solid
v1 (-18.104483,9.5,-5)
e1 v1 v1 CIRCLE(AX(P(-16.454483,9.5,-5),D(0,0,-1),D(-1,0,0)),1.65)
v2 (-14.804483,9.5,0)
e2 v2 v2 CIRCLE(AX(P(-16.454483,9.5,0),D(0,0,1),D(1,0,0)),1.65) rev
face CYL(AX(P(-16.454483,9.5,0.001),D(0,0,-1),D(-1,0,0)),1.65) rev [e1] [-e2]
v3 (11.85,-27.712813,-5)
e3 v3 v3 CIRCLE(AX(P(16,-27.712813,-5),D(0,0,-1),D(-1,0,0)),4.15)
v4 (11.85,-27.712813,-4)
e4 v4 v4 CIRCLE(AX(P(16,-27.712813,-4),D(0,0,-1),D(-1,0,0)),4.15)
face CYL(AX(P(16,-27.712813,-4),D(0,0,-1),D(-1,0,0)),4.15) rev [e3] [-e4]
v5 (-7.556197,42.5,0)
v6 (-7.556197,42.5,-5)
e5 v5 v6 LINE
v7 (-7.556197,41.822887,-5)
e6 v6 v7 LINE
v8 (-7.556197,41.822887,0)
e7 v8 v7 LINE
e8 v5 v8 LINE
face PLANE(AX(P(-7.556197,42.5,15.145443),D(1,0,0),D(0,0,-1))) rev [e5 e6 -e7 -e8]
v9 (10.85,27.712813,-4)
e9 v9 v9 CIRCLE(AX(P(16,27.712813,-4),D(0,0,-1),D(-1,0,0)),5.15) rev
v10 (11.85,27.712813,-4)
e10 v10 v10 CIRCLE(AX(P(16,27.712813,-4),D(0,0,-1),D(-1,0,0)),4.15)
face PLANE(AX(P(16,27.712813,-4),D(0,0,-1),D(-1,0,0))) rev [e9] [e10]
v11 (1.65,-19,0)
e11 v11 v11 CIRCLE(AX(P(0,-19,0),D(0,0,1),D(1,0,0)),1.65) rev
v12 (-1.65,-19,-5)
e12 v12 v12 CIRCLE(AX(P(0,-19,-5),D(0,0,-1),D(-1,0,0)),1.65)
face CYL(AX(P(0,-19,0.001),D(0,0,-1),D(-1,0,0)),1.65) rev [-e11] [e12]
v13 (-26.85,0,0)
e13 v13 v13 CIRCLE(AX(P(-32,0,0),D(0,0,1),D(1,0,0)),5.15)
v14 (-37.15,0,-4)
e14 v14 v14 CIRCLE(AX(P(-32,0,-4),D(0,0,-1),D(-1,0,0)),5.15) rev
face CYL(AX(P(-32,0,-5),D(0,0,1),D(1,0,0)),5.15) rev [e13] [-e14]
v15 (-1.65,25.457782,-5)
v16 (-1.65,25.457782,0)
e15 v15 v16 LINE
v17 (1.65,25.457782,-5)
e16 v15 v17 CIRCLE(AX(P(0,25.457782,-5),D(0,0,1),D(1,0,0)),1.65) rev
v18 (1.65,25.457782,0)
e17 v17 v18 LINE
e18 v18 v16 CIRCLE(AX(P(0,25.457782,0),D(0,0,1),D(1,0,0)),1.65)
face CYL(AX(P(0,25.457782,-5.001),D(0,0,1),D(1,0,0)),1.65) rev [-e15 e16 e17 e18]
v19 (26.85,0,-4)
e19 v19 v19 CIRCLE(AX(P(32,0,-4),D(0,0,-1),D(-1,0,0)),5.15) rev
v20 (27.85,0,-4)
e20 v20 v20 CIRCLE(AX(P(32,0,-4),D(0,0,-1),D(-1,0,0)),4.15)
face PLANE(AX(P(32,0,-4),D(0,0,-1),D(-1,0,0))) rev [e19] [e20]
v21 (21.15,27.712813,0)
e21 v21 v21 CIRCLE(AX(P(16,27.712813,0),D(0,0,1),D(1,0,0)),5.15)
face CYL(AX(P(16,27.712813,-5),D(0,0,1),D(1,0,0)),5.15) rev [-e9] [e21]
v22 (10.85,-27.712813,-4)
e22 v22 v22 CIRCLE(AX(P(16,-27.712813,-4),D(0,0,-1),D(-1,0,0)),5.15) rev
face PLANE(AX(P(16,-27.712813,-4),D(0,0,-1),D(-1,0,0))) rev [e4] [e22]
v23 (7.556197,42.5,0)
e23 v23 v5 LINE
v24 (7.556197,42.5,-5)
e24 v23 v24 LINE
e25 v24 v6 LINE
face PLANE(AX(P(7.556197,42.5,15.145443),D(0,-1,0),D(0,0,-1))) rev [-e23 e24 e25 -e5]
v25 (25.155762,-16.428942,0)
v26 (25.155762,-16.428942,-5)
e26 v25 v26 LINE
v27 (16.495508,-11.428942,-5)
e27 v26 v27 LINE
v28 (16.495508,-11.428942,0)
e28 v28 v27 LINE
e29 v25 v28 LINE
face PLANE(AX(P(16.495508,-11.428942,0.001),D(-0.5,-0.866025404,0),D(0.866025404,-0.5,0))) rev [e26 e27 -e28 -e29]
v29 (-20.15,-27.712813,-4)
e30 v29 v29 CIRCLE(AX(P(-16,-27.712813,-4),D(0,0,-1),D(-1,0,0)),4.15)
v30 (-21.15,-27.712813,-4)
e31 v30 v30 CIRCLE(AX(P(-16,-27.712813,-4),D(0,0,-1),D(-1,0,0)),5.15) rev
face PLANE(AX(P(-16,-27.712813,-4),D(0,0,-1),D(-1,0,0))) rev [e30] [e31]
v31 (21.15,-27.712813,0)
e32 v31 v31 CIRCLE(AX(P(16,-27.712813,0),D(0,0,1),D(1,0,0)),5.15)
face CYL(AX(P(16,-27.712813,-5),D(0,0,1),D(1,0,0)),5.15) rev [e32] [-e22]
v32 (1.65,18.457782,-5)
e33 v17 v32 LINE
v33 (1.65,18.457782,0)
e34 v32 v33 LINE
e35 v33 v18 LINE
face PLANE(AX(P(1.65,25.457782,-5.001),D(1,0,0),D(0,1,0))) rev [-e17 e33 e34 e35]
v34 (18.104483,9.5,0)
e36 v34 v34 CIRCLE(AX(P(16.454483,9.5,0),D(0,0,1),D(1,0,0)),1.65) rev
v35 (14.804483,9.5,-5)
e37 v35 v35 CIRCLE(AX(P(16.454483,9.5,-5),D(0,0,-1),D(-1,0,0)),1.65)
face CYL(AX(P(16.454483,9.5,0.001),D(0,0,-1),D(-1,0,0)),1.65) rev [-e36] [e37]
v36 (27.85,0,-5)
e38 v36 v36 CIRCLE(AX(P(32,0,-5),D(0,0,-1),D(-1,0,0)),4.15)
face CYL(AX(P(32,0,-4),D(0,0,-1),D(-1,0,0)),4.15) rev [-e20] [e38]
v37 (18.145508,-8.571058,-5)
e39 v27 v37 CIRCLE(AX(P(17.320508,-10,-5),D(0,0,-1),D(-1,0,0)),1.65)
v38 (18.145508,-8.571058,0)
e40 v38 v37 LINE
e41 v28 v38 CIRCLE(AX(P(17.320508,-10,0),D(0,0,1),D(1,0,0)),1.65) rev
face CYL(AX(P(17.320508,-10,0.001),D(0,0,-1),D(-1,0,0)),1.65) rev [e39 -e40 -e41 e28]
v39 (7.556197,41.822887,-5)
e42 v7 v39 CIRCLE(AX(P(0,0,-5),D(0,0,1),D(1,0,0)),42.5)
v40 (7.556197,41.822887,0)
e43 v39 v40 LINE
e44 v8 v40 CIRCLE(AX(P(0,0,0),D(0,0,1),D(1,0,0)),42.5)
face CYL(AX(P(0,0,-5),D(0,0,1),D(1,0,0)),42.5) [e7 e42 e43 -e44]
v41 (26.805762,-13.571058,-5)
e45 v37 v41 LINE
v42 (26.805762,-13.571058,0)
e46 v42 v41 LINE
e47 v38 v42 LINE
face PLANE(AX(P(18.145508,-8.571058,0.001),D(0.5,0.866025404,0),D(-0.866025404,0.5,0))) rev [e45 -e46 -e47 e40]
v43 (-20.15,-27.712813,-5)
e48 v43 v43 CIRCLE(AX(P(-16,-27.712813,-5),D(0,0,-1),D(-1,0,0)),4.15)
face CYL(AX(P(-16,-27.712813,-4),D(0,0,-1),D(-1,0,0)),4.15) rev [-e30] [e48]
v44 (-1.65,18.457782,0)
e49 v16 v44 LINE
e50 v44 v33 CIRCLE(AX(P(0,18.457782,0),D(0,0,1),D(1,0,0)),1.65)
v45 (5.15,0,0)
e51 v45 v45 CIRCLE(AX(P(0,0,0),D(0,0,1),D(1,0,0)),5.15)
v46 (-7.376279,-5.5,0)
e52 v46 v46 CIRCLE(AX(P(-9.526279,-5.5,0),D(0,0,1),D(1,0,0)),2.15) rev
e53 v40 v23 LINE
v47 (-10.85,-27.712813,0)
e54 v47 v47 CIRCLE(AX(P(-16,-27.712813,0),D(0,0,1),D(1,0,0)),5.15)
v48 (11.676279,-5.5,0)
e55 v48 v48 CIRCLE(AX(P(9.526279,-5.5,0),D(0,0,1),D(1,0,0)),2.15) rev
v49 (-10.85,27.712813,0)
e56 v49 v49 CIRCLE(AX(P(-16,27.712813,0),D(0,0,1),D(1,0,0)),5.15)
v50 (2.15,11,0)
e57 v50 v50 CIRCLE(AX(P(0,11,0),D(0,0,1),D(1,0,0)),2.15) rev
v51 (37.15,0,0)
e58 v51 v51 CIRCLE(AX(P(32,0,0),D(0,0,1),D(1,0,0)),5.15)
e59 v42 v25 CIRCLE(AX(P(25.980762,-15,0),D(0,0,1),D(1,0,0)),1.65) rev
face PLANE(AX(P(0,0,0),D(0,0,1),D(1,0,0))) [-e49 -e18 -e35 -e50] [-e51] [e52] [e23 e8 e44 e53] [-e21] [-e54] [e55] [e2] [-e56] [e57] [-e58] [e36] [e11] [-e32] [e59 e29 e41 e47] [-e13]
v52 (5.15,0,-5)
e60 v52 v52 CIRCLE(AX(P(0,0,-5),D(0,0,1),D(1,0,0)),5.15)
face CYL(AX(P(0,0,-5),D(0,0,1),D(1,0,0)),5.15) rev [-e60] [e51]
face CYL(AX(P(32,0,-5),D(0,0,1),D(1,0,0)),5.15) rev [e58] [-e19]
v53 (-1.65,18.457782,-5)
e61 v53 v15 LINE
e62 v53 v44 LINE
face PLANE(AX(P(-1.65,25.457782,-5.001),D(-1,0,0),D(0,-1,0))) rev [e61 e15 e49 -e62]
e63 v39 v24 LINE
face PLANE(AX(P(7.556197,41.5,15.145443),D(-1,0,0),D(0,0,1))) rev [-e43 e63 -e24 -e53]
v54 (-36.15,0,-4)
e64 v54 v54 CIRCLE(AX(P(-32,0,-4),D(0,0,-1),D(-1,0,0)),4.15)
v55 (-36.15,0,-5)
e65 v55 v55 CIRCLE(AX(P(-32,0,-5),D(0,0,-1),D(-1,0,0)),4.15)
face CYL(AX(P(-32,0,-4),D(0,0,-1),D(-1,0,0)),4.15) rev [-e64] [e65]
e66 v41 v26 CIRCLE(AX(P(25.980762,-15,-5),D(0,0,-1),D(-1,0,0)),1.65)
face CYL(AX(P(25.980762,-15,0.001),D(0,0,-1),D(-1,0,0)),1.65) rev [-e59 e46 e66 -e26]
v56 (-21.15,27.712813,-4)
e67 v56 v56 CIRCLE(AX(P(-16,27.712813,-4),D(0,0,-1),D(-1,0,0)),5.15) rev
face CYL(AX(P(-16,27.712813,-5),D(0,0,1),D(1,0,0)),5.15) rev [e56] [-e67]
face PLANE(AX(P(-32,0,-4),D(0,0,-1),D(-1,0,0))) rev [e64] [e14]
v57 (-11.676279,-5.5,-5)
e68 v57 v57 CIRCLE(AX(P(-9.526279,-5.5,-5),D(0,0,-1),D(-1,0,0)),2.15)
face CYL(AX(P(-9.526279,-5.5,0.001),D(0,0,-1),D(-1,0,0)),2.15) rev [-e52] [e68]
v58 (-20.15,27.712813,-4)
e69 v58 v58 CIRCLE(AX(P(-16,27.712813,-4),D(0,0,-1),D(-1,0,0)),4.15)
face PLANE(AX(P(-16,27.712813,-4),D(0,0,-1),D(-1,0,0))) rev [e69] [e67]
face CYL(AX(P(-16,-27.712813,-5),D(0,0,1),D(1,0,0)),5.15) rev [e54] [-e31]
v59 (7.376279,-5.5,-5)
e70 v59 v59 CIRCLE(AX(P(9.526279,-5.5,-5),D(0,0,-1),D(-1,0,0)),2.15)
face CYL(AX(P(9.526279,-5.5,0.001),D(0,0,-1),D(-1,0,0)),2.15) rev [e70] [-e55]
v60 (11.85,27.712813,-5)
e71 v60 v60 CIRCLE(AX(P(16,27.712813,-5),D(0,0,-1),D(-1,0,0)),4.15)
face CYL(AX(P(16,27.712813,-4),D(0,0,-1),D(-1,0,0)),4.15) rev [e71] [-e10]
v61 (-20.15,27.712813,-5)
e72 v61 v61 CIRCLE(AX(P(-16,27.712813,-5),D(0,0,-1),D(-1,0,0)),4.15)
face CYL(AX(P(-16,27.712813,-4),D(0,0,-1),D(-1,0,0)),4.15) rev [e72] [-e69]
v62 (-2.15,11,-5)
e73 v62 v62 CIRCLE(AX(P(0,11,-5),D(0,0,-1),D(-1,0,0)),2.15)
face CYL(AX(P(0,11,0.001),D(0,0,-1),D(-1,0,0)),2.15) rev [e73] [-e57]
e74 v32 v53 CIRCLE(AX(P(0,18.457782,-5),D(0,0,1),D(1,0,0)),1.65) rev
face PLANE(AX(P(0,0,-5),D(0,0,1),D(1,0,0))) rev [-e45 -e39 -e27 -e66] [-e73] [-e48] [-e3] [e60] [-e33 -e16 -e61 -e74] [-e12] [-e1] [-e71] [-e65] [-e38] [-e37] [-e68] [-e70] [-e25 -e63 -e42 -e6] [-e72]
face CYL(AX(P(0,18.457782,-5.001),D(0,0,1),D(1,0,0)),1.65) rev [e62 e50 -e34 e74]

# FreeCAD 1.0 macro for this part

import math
import FreeCAD as App
import Part
import Sketcher
Q = App.Units.Quantity

doc = App.newDocument("Part")
body = doc.addObject("PartDesign::Body", "Body")

# Sketch on XY plane
sketch1 = body.newObject("Sketcher::SketchObject", "Sketch")
sketch1.AttachmentSupport = (doc.getObject("XY_Plane"), [""])
sketch1.MapMode = "FlatFace"
sketch1.addGeometry(Part.Circle(App.Vector(0, 0, 0), App.Vector(0, 0, 1), 42.5), False)
sketch1.addConstraint([
    Sketcher.Constraint("Coincident", 0, 3, -1, 1),
    Sketcher.Constraint("Diameter", 0, Q("85 mm")),
])
pad1 = body.newObject("PartDesign::Pad", "Pad")
pad1.Profile = sketch1
pad1.Length = 5
pad1.Reversed = True

# Sketch on XY plane
sketch2 = body.newObject("Sketcher::SketchObject", "Sketch001")
sketch2.AttachmentSupport = (doc.getObject("XY_Plane"), [""])
sketch2.MapMode = "FlatFace"
sketch2.addGeometry([
    Part.Circle(App.Vector(-32, 0, 0), App.Vector(0, 0, 1), 5.15),  # 0
    Part.Circle(App.Vector(-16, 27.712813, 0), App.Vector(0, 0, 1), 5.15),  # 1
    Part.Circle(App.Vector(16, 27.712813, 0), App.Vector(0, 0, 1), 5.15),  # 2
    Part.Circle(App.Vector(32, 0, 0), App.Vector(0, 0, 1), 5.15),  # 3
    Part.Circle(App.Vector(16, -27.712813, 0), App.Vector(0, 0, 1), 5.15),  # 4
    Part.Circle(App.Vector(-16, -27.712813, 0), App.Vector(0, 0, 1), 5.15),  # 5
], False)
sketch2.addConstraint([
    Sketcher.Constraint("Equal", 0, 1),
    Sketcher.Constraint("Equal", 1, 2),
    Sketcher.Constraint("Equal", 2, 3),
    Sketcher.Constraint("Equal", 3, 4),
    Sketcher.Constraint("Equal", 4, 5),
    Sketcher.Constraint("Symmetric", 0, 3, 3, 3, -1, 1),
    Sketcher.Constraint("Symmetric", 1, 3, 4, 3, -1, 1),
    Sketcher.Constraint("Symmetric", 2, 3, 5, 3, -1, 1),
    Sketcher.Constraint("Symmetric", 1, 3, 2, 3, -2),
    Sketcher.Constraint("PointOnObject", 0, 3, -1),
    Sketcher.Constraint("Diameter", 0, Q("10.3 mm")),
    Sketcher.Constraint("DistanceX", 0, 3, -1, 1, Q("32 mm")),
    Sketcher.Constraint("DistanceX", 1, 3, -1, 1, Q("16 mm")),
    Sketcher.Constraint("DistanceY", -1, 1, 1, 3, Q("27.712813 mm")),
])
pocket1 = body.newObject("PartDesign::Pocket", "Pocket")
pocket1.Profile = sketch2
pocket1.Type = "ThroughAll"

# Sketch on XY plane
sketch3 = body.newObject("Sketcher::SketchObject", "Sketch002")
sketch3.AttachmentSupport = (doc.getObject("XY_Plane"), [""])
sketch3.MapMode = "FlatFace"
sketch3.addGeometry(Part.Circle(App.Vector(0, 0, 0), App.Vector(0, 0, 1), 5.15), False)
sketch3.addConstraint([
    Sketcher.Constraint("Coincident", 0, 3, -1, 1),
    Sketcher.Constraint("Diameter", 0, Q("10.3 mm")),
])
pocket2 = body.newObject("PartDesign::Pocket", "Pocket001")
pocket2.Profile = sketch3
pocket2.Type = "ThroughAll"

# Sketch on XY plane
sketch4 = body.newObject("Sketcher::SketchObject", "Sketch003")
sketch4.AttachmentSupport = (doc.getObject("XY_Plane"), [""])
sketch4.MapMode = "FlatFace"
sketch4.AttachmentOffset = App.Placement(App.Vector(0, 0, -4), App.Rotation())
sketch4.addGeometry([
    Part.Circle(App.Vector(16, 27.712813, 0), App.Vector(0, 0, 1), 5.15),  # 0
    Part.Circle(App.Vector(16, 27.712813, 0), App.Vector(0, 0, 1), 4.15),  # 1
    Part.Circle(App.Vector(-16, 27.712813, 0), App.Vector(0, 0, 1), 5.15),  # 2
    Part.Circle(App.Vector(-16, 27.712813, 0), App.Vector(0, 0, 1), 4.15),  # 3
    Part.Circle(App.Vector(-32, 0, 0), App.Vector(0, 0, 1), 5.15),  # 4
    Part.Circle(App.Vector(-32, 0, 0), App.Vector(0, 0, 1), 4.15),  # 5
    Part.Circle(App.Vector(-16, -27.712813, 0), App.Vector(0, 0, 1), 5.15),  # 6
    Part.Circle(App.Vector(-16, -27.712813, 0), App.Vector(0, 0, 1), 4.15),  # 7
    Part.Circle(App.Vector(16, -27.712813, 0), App.Vector(0, 0, 1), 5.15),  # 8
    Part.Circle(App.Vector(16, -27.712813, 0), App.Vector(0, 0, 1), 4.15),  # 9
    Part.Circle(App.Vector(32, 0, 0), App.Vector(0, 0, 1), 5.15),  # 10
    Part.Circle(App.Vector(32, 0, 0), App.Vector(0, 0, 1), 4.15),  # 11
], False)
sketch4.addConstraint([
    Sketcher.Constraint("Coincident", 1, 3, 0, 3),
    Sketcher.Constraint("Coincident", 3, 3, 2, 3),
    Sketcher.Constraint("Coincident", 5, 3, 4, 3),
    Sketcher.Constraint("Coincident", 7, 3, 6, 3),
    Sketcher.Constraint("Coincident", 9, 3, 8, 3),
    Sketcher.Constraint("Coincident", 11, 3, 10, 3),
    Sketcher.Constraint("Equal", 0, 2),
    Sketcher.Constraint("Equal", 1, 3),
    Sketcher.Constraint("Equal", 2, 4),
    Sketcher.Constraint("Equal", 3, 5),
    Sketcher.Constraint("Equal", 4, 6),
    Sketcher.Constraint("Equal", 5, 7),
    Sketcher.Constraint("Equal", 6, 8),
    Sketcher.Constraint("Equal", 7, 9),
    Sketcher.Constraint("Equal", 8, 10),
    Sketcher.Constraint("Equal", 9, 11),
    Sketcher.Constraint("Symmetric", 0, 3, 6, 3, -1, 1),
    Sketcher.Constraint("Symmetric", 2, 3, 8, 3, -1, 1),
    Sketcher.Constraint("Symmetric", 4, 3, 10, 3, -1, 1),
    Sketcher.Constraint("Symmetric", 0, 3, 2, 3, -2),
    Sketcher.Constraint("PointOnObject", 4, 3, -1),
    Sketcher.Constraint("Diameter", 0, Q("10.3 mm")),
    Sketcher.Constraint("Diameter", 1, Q("8.3 mm")),
    Sketcher.Constraint("DistanceX", -1, 1, 0, 3, Q("16 mm")),
    Sketcher.Constraint("DistanceX", 4, 3, -1, 1, Q("32 mm")),
    Sketcher.Constraint("DistanceY", -1, 1, 0, 3, Q("27.712813 mm")),
])
pad2 = body.newObject("PartDesign::Pad", "Pad001")
pad2.Profile = sketch4
pad2.Length = 1
pad2.Reversed = True

# Sketch on XY plane
sketch5 = body.newObject("Sketcher::SketchObject", "Sketch004")
sketch5.AttachmentSupport = (doc.getObject("XY_Plane"), [""])
sketch5.MapMode = "FlatFace"
sketch5.AttachmentOffset = App.Placement(App.Vector(0, 0, -5), App.Rotation())
sketch5.addGeometry(Part.Circle(App.Vector(16.454483, 9.5, 0), App.Vector(0, 0, 1), 1.65), False)
sketch5.addConstraint([
    Sketcher.Constraint("Diameter", 0, Q("3.3 mm")),
    Sketcher.Constraint("DistanceY", -1, 1, 0, 3, Q("9.5 mm")),
    Sketcher.Constraint("DistanceX", -1, 1, 0, 3, Q("16.454483 mm")),
])
pocket3 = body.newObject("PartDesign::Pocket", "Pocket002")
pocket3.Profile = sketch5
pocket3.Type = "UpToFirst"
pocket3.Reversed = True

# Sketch on XY plane
sketch6 = body.newObject("Sketcher::SketchObject", "Sketch005")
sketch6.AttachmentSupport = (doc.getObject("XY_Plane"), [""])
sketch6.MapMode = "FlatFace"
sketch6.AttachmentOffset = App.Placement(App.Vector(0, 0, -5), App.Rotation())
sketch6.addGeometry(Part.Circle(App.Vector(-16.454483, 9.5, 0), App.Vector(0, 0, 1), 1.65), False)
sketch6.addConstraint([
    Sketcher.Constraint("Diameter", 0, Q("3.3 mm")),
    Sketcher.Constraint("DistanceY", -1, 1, 0, 3, Q("9.5 mm")),
    Sketcher.Constraint("DistanceX", 0, 3, -1, 1, Q("16.454483 mm")),
])
pocket4 = body.newObject("PartDesign::Pocket", "Pocket003")
pocket4.Profile = sketch6
pocket4.Type = "UpToFirst"
pocket4.Reversed = True

# Sketch on XY plane
sketch7 = body.newObject("Sketcher::SketchObject", "Sketch006")
sketch7.AttachmentSupport = (doc.getObject("XY_Plane"), [""])
sketch7.MapMode = "FlatFace"
sketch7.AttachmentOffset = App.Placement(App.Vector(0, 0, -5), App.Rotation())
sketch7.addGeometry(Part.Circle(App.Vector(0, -19, 0), App.Vector(0, 0, 1), 1.65), False)
sketch7.addConstraint([
    Sketcher.Constraint("PointOnObject", 0, 3, -2),
    Sketcher.Constraint("Diameter", 0, Q("3.3 mm")),
    Sketcher.Constraint("DistanceY", 0, 3, -1, 1, Q("19 mm")),
])
pocket5 = body.newObject("PartDesign::Pocket", "Pocket004")
pocket5.Profile = sketch7
pocket5.Type = "UpToFirst"
pocket5.Reversed = True

# Sketch on XY plane
sketch8 = body.newObject("Sketcher::SketchObject", "Sketch007")
sketch8.AttachmentSupport = (doc.getObject("XY_Plane"), [""])
sketch8.MapMode = "FlatFace"
sketch8.AttachmentOffset = App.Placement(App.Vector(0, 0, -5), App.Rotation())
sketch8.addGeometry([
    Part.LineSegment(App.Vector(25.155762, -16.428942, 0), App.Vector(16.495508, -11.428942, 0)),
    Part.ArcOfCircle(Part.Circle(App.Vector(17.320508, -10, 0), App.Vector(0, 0, 1), 1.65), math.radians(60), math.radians(240)),
    Part.LineSegment(App.Vector(18.145508, -8.571058, 0), App.Vector(26.805762, -13.571058, 0)),
    Part.ArcOfCircle(Part.Circle(App.Vector(25.980762, -15, 0), App.Vector(0, 0, 1), 1.65), math.radians(-120), math.radians(60)),
], False)
sketch8.addConstraint([
    Sketcher.Constraint("Tangent", 0, 2, 1, 2),
    Sketcher.Constraint("Tangent", 1, 1, 2, 1),
    Sketcher.Constraint("Tangent", 2, 2, 3, 2),
    Sketcher.Constraint("Tangent", 3, 1, 0, 1),
    Sketcher.Constraint("Equal", 1, 3),
    Sketcher.Constraint("Angle", 0, Q("150 deg")),
    Sketcher.Constraint("Radius", 1, Q("1.65 mm")),
    Sketcher.Constraint("Distance", 0, Q("10 mm")),
    Sketcher.Constraint("DistanceY", 1, 3, -1, 1, Q("10 mm")),
    Sketcher.Constraint("DistanceX", -1, 1, 1, 3, Q("17.320508 mm")),
])
pocket6 = body.newObject("PartDesign::Pocket", "Pocket005")
pocket6.Profile = sketch8
pocket6.Type = "UpToFirst"
pocket6.Reversed = True

# Sketch on XY plane
sketch9 = body.newObject("Sketcher::SketchObject", "Sketch008")
sketch9.AttachmentSupport = (doc.getObject("XY_Plane"), [""])
sketch9.MapMode = "FlatFace"
sketch9.AttachmentOffset = App.Placement(App.Vector(0, 0, -5), App.Rotation())
sketch9.addGeometry(Part.Circle(App.Vector(9.526279, -5.5, 0), App.Vector(0, 0, 1), 2.15), False)
sketch9.addConstraint([
    Sketcher.Constraint("Diameter", 0, Q("4.3 mm")),
    Sketcher.Constraint("DistanceY", 0, 3, -1, 1, Q("5.5 mm")),
    Sketcher.Constraint("DistanceX", -1, 1, 0, 3, Q("9.526279 mm")),
])
pocket7 = body.newObject("PartDesign::Pocket", "Pocket006")
pocket7.Profile = sketch9
pocket7.Type = "UpToFirst"
pocket7.Reversed = True

# Sketch on XY plane
sketch10 = body.newObject("Sketcher::SketchObject", "Sketch009")
sketch10.AttachmentSupport = (doc.getObject("XY_Plane"), [""])
sketch10.MapMode = "FlatFace"
sketch10.AttachmentOffset = App.Placement(App.Vector(0, 0, -5), App.Rotation())
sketch10.addGeometry(Part.Circle(App.Vector(0, 11, 0), App.Vector(0, 0, 1), 2.15), False)
sketch10.addConstraint([
    Sketcher.Constraint("PointOnObject", 0, 3, -2),
    Sketcher.Constraint("Diameter", 0, Q("4.3 mm")),
    Sketcher.Constraint("DistanceY", -1, 1, 0, 3, Q("11 mm")),
])
pocket8 = body.newObject("PartDesign::Pocket", "Pocket007")
pocket8.Profile = sketch10
pocket8.Type = "UpToFirst"
pocket8.Reversed = True

# Sketch on XY plane
sketch11 = body.newObject("Sketcher::SketchObject", "Sketch010")
sketch11.AttachmentSupport = (doc.getObject("XY_Plane"), [""])
sketch11.MapMode = "FlatFace"
sketch11.AttachmentOffset = App.Placement(App.Vector(0, 0, -5), App.Rotation())
sketch11.addGeometry(Part.Circle(App.Vector(-9.526279, -5.5, 0), App.Vector(0, 0, 1), 2.15), False)
sketch11.addConstraint([
    Sketcher.Constraint("Diameter", 0, Q("4.3 mm")),
    Sketcher.Constraint("DistanceY", 0, 3, -1, 1, Q("5.5 mm")),
    Sketcher.Constraint("DistanceX", 0, 3, -1, 1, Q("9.526279 mm")),
])
pocket9 = body.newObject("PartDesign::Pocket", "Pocket008")
pocket9.Profile = sketch11
pocket9.Type = "UpToFirst"
pocket9.Reversed = True

# Sketch on XY plane
sketch12 = body.newObject("Sketcher::SketchObject", "Sketch011")
sketch12.AttachmentSupport = (doc.getObject("XY_Plane"), [""])
sketch12.MapMode = "FlatFace"
sketch12.addGeometry([
    Part.LineSegment(App.Vector(1.65, 18.457782, 0), App.Vector(1.65, 25.457782, 0)),
    Part.ArcOfCircle(Part.Circle(App.Vector(0, 25.457782, 0), App.Vector(0, 0, 1), 1.65), math.radians(0), math.radians(180)),
    Part.LineSegment(App.Vector(-1.65, 25.457782, 0), App.Vector(-1.65, 18.457782, 0)),
    Part.ArcOfCircle(Part.Circle(App.Vector(0, 18.457782, 0), App.Vector(0, 0, 1), 1.65), math.radians(180), math.radians(360)),
], False)
sketch12.addConstraint([
    Sketcher.Constraint("Tangent", 0, 2, 1, 1),
    Sketcher.Constraint("Tangent", 1, 2, 2, 1),
    Sketcher.Constraint("Tangent", 2, 2, 3, 1),
    Sketcher.Constraint("Tangent", 3, 2, 0, 1),
    Sketcher.Constraint("Vertical", 0),
    Sketcher.Constraint("Vertical", 2),
    Sketcher.Constraint("PointOnObject", 1, 3, -2),
    Sketcher.Constraint("DistanceY", 0, 1, 0, 2, Q("7 mm")),
    Sketcher.Constraint("Radius", 1, Q("1.65 mm")),
    Sketcher.Constraint("DistanceY", -1, 1, 1, 3, Q("25.457782 mm")),
])
pocket10 = body.newObject("PartDesign::Pocket", "Pocket009")
pocket10.Profile = sketch12
pocket10.Type = "UpToFirst"

# Sketch on XY plane
sketch13 = body.newObject("Sketcher::SketchObject", "Sketch012")
sketch13.AttachmentSupport = (doc.getObject("XY_Plane"), [""])
sketch13.MapMode = "FlatFace"
sketch13.AttachmentOffset = App.Placement(App.Vector(0, 0, -5), App.Rotation())
sketch13.addGeometry([
    Part.LineSegment(App.Vector(7.556197, 42.5, 0), App.Vector(7.556197, 41.5, 0)),
    Part.LineSegment(App.Vector(7.556197, 41.5, 0), App.Vector(-7.556197, 41.5, 0)),
    Part.LineSegment(App.Vector(-7.556197, 41.5, 0), App.Vector(-7.556197, 42.5, 0)),
    Part.LineSegment(App.Vector(-7.556197, 42.5, 0), App.Vector(7.556197, 42.5, 0)),
], False)
sketch13.addConstraint([
    Sketcher.Constraint("Coincident", 0, 2, 1, 1),
    Sketcher.Constraint("Coincident", 1, 2, 2, 1),
    Sketcher.Constraint("Coincident", 2, 2, 3, 1),
    Sketcher.Constraint("Coincident", 3, 2, 0, 1),
    Sketcher.Constraint("Vertical", 0),
    Sketcher.Constraint("Horizontal", 1),
    Sketcher.Constraint("Vertical", 2),
    Sketcher.Constraint("Horizontal", 3),
    Sketcher.Constraint("DistanceY", 0, 2, 0, 1, Q("1 mm")),
    Sketcher.Constraint("DistanceY", -1, 1, 0, 2, Q("41.5 mm")),
    Sketcher.Constraint("DistanceX", 1, 2, 1, 1, Q("15.112394 mm")),
    Sketcher.Constraint("DistanceX", -1, 1, 0, 2, Q("7.556197 mm")),
])
pad3 = body.newObject("PartDesign::Pad", "Pad002")
pad3.Profile = sketch13
pad3.Length = 5

doc.recompute()
